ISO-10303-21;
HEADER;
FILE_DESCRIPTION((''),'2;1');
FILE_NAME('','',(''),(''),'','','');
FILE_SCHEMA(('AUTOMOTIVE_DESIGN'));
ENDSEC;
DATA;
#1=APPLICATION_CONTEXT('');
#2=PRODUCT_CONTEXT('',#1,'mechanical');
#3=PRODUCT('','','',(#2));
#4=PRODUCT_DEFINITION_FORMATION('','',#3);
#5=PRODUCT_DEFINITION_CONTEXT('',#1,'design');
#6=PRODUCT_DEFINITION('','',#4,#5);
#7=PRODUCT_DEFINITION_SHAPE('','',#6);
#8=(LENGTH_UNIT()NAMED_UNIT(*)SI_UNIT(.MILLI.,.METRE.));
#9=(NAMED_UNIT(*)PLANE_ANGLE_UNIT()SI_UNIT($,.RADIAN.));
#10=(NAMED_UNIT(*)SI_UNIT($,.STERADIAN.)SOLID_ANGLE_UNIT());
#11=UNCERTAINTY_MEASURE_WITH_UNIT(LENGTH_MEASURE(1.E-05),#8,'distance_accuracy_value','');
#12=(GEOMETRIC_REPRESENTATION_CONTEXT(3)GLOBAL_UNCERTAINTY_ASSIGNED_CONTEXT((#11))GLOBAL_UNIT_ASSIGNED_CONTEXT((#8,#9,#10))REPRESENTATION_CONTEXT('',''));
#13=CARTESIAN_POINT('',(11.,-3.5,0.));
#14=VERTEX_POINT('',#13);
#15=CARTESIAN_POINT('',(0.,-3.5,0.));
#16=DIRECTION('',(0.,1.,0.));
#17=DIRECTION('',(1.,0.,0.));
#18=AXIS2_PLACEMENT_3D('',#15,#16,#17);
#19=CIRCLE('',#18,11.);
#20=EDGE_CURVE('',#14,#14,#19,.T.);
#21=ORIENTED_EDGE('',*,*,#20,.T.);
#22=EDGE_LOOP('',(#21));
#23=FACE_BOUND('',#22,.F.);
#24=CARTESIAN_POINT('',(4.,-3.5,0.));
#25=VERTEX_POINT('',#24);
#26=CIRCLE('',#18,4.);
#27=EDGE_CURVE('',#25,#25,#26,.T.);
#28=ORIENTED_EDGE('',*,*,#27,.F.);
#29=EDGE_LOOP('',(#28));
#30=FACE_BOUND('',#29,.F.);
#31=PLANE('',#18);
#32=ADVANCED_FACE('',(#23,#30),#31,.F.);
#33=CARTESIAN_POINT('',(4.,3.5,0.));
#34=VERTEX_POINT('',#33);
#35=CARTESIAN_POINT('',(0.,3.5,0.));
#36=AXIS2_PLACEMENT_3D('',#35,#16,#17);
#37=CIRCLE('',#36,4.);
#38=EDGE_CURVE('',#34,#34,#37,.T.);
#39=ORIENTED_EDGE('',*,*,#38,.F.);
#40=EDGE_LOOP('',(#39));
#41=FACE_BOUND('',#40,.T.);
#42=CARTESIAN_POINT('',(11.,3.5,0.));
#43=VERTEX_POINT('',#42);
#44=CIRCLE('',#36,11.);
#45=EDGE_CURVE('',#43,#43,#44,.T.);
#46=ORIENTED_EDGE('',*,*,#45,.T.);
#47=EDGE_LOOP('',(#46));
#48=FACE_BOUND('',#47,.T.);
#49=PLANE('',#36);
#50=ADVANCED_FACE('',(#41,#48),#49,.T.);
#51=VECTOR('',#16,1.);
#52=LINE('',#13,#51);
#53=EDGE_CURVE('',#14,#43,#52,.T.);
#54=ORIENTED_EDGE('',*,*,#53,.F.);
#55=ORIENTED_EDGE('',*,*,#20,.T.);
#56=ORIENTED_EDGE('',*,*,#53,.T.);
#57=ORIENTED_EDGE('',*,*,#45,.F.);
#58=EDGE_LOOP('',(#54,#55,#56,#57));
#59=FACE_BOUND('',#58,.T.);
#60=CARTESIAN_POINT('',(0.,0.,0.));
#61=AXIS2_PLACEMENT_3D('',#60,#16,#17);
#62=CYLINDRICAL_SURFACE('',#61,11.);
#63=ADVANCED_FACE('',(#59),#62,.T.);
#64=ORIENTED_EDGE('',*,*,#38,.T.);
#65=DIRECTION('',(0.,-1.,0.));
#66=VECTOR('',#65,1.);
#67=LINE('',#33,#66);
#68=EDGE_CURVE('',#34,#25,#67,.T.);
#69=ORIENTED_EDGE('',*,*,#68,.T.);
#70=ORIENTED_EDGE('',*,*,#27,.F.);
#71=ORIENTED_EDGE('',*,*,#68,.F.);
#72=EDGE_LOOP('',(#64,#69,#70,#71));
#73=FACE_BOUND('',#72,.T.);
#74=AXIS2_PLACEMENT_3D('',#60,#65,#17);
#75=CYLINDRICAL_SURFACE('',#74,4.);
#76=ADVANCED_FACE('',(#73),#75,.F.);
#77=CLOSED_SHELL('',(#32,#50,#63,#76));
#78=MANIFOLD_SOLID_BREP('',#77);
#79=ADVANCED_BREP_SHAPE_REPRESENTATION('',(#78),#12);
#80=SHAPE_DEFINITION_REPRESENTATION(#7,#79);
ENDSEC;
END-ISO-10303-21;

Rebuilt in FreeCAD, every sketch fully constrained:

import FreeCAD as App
import Part
import Sketcher
from FreeCAD import Vector

doc = App.newDocument("Part")
body = doc.addObject("PartDesign::Body", "Body")

sketch1 = body.newObject("Sketcher::SketchObject", "Sketch")
sketch1.AttachmentSupport = (doc.getObject("XZ_Plane"), [""])
sketch1.MapMode = "FlatFace"
sketch1.addGeometry([
    Part.Circle(Vector(0, 0, 0), Vector(0, 0, 1), 11),
    Part.Circle(Vector(0, 0, 0), Vector(0, 0, 1), 4),
], False)
sketch1.addConstraint([
    Sketcher.Constraint("Coincident", 0, 3, -1, 1),
    Sketcher.Constraint("Coincident", 1, 3, -1, 1),
    Sketcher.Constraint("Diameter", 0, 22.0),
    Sketcher.Constraint("Diameter", 1, 8.0),
])
pad1 = body.newObject("PartDesign::Pad", "Pad")
pad1.Profile = sketch1
pad1.Length = 7
pad1.Midplane = True

doc.recompute()
